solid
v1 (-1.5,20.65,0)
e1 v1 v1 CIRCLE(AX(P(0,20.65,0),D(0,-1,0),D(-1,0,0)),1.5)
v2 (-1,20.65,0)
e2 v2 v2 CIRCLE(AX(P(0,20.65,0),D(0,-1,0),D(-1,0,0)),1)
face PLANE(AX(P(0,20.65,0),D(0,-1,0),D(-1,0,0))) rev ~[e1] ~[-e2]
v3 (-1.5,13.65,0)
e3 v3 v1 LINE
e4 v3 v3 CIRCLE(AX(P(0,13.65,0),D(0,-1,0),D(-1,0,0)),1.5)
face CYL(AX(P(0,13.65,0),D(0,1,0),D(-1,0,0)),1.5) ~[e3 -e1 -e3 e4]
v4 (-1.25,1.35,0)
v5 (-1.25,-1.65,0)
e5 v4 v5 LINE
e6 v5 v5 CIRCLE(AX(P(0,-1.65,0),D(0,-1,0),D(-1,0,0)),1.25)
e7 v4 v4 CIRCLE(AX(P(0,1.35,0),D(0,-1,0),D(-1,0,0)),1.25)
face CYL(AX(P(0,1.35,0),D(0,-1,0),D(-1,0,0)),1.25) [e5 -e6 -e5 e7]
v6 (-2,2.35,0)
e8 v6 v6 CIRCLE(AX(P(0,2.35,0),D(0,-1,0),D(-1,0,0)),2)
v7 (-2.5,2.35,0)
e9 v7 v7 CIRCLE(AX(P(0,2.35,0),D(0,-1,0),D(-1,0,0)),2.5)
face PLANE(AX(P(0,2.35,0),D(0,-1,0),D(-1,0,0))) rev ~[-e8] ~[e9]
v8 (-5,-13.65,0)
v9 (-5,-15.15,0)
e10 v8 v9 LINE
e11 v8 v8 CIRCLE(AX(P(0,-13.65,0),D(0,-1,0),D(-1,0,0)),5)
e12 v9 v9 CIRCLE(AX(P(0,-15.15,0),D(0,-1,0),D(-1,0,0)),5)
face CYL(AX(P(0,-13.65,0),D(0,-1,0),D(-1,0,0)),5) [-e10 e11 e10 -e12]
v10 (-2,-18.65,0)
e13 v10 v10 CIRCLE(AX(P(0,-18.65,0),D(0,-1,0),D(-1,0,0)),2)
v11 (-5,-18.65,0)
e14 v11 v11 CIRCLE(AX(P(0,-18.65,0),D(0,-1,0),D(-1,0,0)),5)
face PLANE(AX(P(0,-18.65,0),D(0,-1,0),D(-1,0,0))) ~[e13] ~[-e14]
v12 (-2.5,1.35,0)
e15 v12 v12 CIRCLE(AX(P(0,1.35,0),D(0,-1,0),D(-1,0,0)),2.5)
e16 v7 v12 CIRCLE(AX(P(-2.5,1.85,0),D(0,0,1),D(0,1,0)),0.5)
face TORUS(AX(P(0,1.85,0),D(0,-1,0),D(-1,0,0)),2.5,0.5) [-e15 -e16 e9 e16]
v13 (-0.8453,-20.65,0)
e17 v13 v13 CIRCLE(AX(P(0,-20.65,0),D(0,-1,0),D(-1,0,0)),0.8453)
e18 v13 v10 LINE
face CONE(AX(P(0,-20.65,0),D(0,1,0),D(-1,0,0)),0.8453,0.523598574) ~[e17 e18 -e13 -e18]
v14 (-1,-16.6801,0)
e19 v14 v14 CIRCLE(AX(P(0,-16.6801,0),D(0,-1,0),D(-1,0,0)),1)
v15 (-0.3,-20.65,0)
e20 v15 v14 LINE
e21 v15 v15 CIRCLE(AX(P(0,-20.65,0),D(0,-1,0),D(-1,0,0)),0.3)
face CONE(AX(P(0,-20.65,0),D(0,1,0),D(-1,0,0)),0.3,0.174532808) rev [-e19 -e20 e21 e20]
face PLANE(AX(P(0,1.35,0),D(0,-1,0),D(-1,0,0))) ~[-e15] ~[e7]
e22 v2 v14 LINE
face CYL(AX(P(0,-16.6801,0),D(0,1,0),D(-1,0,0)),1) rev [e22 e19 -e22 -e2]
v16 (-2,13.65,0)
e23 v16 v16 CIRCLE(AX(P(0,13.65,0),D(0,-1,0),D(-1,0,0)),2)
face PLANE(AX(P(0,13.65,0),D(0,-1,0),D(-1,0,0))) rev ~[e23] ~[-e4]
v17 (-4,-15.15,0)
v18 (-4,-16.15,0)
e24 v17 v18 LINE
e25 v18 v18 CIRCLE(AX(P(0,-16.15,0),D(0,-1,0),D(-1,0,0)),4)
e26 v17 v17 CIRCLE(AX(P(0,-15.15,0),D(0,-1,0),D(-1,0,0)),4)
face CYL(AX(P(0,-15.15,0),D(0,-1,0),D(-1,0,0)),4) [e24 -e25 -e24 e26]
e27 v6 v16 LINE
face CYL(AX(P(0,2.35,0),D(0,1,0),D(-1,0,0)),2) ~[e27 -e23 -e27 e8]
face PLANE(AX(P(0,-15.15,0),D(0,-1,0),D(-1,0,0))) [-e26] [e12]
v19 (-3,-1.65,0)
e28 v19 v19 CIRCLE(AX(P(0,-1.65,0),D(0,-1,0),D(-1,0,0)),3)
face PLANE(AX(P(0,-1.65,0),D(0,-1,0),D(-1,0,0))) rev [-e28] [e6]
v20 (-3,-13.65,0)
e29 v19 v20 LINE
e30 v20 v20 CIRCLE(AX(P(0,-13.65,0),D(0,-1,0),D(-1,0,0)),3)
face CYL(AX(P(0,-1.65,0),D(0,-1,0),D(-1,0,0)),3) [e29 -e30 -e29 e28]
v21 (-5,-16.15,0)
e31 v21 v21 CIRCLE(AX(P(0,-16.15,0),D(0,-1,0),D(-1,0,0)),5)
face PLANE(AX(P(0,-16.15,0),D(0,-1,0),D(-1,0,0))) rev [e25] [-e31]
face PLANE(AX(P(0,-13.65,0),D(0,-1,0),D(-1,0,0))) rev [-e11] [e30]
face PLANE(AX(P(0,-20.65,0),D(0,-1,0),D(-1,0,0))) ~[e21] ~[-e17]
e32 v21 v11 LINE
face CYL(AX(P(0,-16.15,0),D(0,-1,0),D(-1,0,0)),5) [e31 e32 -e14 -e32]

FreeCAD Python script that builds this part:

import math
import FreeCAD as App
import Part
import Sketcher
from FreeCAD import Vector
Q = App.Units.Quantity

doc = App.newDocument("Part")
params = doc.addObject("Spreadsheet::Sheet", "Params")
for row, (alias, value) in enumerate([
    ("sketch1_radius", "0.5 mm"),
    ("sketch1_width", "2 mm"),
    ("sketch1_width2", "1 mm"),
    ("sketch1_width3", "3 mm"),
    ("sketch1_height", "7 mm"),
    ("revolution_angle", "360 deg"),
], start=1):
    params.set(f"A{row}", alias)
    params.set(f"B{row}", "=" + value)
    params.setAlias(f"B{row}", alias)

body = doc.addObject("PartDesign::Body", "Body")

# Sketch on XY plane
sketch1 = doc.addObject("Sketcher::SketchObject", "Sketch")
body.addObject(sketch1)
sketch1.AttachmentSupport = (doc.XY_Plane, [""])
sketch1.MapMode = "FlatFace"
sketch1.addGeometry([
    Part.LineSegment(Vector(-1, 20.6, 0), Vector(-1.5, 20.6, 0)),  # 0
    Part.LineSegment(Vector(-1.5, 20.6, 0), Vector(-1.5, 13.7, 0)),  # 1
    Part.LineSegment(Vector(-1.5, 13.7, 0), Vector(-2, 13.7, 0)),  # 2
    Part.LineSegment(Vector(-2, 13.7, 0), Vector(-2, 2.4, 0)),  # 3
    Part.LineSegment(Vector(-2, 2.4, 0), Vector(-2.5, 2.4, 0)),  # 4
    Part.ArcOfCircle(Part.Circle(Vector(-2.5, 1.9, 0), Vector(0, 0, 1), 0.5), math.radians(90), math.radians(270)),  # 5
    Part.LineSegment(Vector(-2.5, 1.4, 0), Vector(-1.2, 1.4, 0)),  # 6
    Part.LineSegment(Vector(-1.2, 1.4, 0), Vector(-1.2, -1.6, 0)),  # 7
    Part.LineSegment(Vector(-1.2, -1.6, 0), Vector(-3, -1.6, 0)),  # 8
    Part.LineSegment(Vector(-3, -1.6, 0), Vector(-3, -13.7, 0)),  # 9
    Part.LineSegment(Vector(-3, -13.7, 0), Vector(-5, -13.7, 0)),  # 10
    Part.LineSegment(Vector(-5, -13.7, 0), Vector(-5, -15.2, 0)),  # 11
    Part.LineSegment(Vector(-5, -15.2, 0), Vector(-4, -15.2, 0)),  # 12
    Part.LineSegment(Vector(-4, -15.2, 0), Vector(-4, -16.1, 0)),  # 13
    Part.LineSegment(Vector(-4, -16.1, 0), Vector(-5, -16.1, 0)),  # 14
    Part.LineSegment(Vector(-5, -16.1, 0), Vector(-5, -18.6, 0)),  # 15
    Part.LineSegment(Vector(-5, -18.6, 0), Vector(-2, -18.6, 0)),  # 16
    Part.LineSegment(Vector(-2, -18.6, 0), Vector(-0.8, -20.6, 0)),  # 17
    Part.LineSegment(Vector(-0.8, -20.6, 0), Vector(-0.3, -20.6, 0)),  # 18
    Part.LineSegment(Vector(-0.3, -20.6, 0), Vector(-1, -16.7, 0)),  # 19
    Part.LineSegment(Vector(-1, -16.7, 0), Vector(-1, 20.6, 0)),  # 20
], False)
sketch1.addConstraint([
    Sketcher.Constraint("Coincident", 0, 2, 1, 1),
    Sketcher.Constraint("Coincident", 1, 2, 2, 1),
    Sketcher.Constraint("Coincident", 2, 2, 3, 1),
    Sketcher.Constraint("Coincident", 3, 2, 4, 1),
    Sketcher.Constraint("Tangent", 4, 2, 5, 1),
    Sketcher.Constraint("Tangent", 5, 2, 6, 1),
    Sketcher.Constraint("Coincident", 6, 2, 7, 1),
    Sketcher.Constraint("Coincident", 7, 2, 8, 1),
    Sketcher.Constraint("Coincident", 8, 2, 9, 1),
    Sketcher.Constraint("Coincident", 9, 2, 10, 1),
    Sketcher.Constraint("Coincident", 10, 2, 11, 1),
    Sketcher.Constraint("Coincident", 11, 2, 12, 1),
    Sketcher.Constraint("Coincident", 12, 2, 13, 1),
    Sketcher.Constraint("Coincident", 13, 2, 14, 1),
    Sketcher.Constraint("Coincident", 14, 2, 15, 1),
    Sketcher.Constraint("Coincident", 15, 2, 16, 1),
    Sketcher.Constraint("Coincident", 16, 2, 17, 1),
    Sketcher.Constraint("Coincident", 17, 2, 18, 1),
    Sketcher.Constraint("Coincident", 18, 2, 19, 1),
    Sketcher.Constraint("Coincident", 19, 2, 20, 1),
    Sketcher.Constraint("Coincident", 20, 2, 0, 1),
    Sketcher.Constraint("Horizontal", 0),
    Sketcher.Constraint("Vertical", 1),
    Sketcher.Constraint("Horizontal", 2),
    Sketcher.Constraint("Vertical", 3),
    Sketcher.Constraint("Horizontal", 4),
    Sketcher.Constraint("Horizontal", 6),
    Sketcher.Constraint("Vertical", 7),
    Sketcher.Constraint("Horizontal", 8),
    Sketcher.Constraint("Vertical", 9),
    Sketcher.Constraint("Horizontal", 10),
    Sketcher.Constraint("Vertical", 11),
    Sketcher.Constraint("Horizontal", 12),
    Sketcher.Constraint("Vertical", 13),
    Sketcher.Constraint("Horizontal", 14),
    Sketcher.Constraint("Vertical", 15),
    Sketcher.Constraint("Horizontal", 16),
    Sketcher.Constraint("Horizontal", 18),
    Sketcher.Constraint("Vertical", 20),
    Sketcher.Constraint("Vertical", 11, 2, 14, 2),
    Sketcher.Constraint("Vertical", 3, 2, 16, 2),
    Sketcher.Constraint("Equal", 0, 2),
    Sketcher.Constraint("Equal", 2, 4),
    Sketcher.Constraint("Equal", 16, 7),
    Sketcher.Constraint("Equal", 14, 13),
    Sketcher.Constraint("Radius", 5, 0.5),
    Sketcher.Constraint("DistanceX", 10, 2, 10, 1, 2.0),
    Sketcher.Constraint("DistanceX", 12, 1, 12, 2, 1.0),
    Sketcher.Constraint("DistanceX", 16, 1, 16, 2, 3.0),
    Sketcher.Constraint("DistanceY", 1, 2, 1, 1, 7.0),
    Sketcher.Constraint("DistanceY", 9, 2, 9, 1, 12.0),
    Sketcher.Constraint("Angle", 17, Q("-60 deg")),
    Sketcher.Constraint("DistanceY", 11, 2, 11, 1, 1.5),
    Sketcher.Constraint("DistanceY", 15, 2, 15, 1, 2.5),
    Sketcher.Constraint("DistanceX", 2, 2, -1, 1, 2.0),
    Sketcher.Constraint("DistanceX", 19, 2, -1, 1, 1.0),
    Sketcher.Constraint("DistanceY", 17, 2, 16, 2, 2.0),
    Sketcher.Constraint("Angle", 19, Q("100 deg")),
    Sketcher.Constraint("DistanceY", 3, 2, 3, 1, 11.3),
    Sketcher.Constraint("DistanceX", 6, 1, 6, 2, 1.25),
    Sketcher.Constraint("DistanceY", 20, 1, 20, 2, 37.33),
    Sketcher.Constraint("DistanceY", -1, 1, 5, 3, 1.85),
])
sketch1.setExpression("Constraints[45]", "Params.sketch1_radius")
sketch1.setExpression("Constraints[46]", "Params.sketch1_width")
sketch1.setExpression("Constraints[47]", "Params.sketch1_width2")
sketch1.setExpression("Constraints[48]", "Params.sketch1_width3")
sketch1.setExpression("Constraints[49]", "Params.sketch1_height")
revolution = doc.addObject("PartDesign::Revolution", "Revolution")
body.addObject(revolution)
revolution.Profile = sketch1
revolution.ReferenceAxis = (sketch1, ["V_Axis"])
revolution.setExpression("Angle", "Params.revolution_angle")

doc.recompute()
